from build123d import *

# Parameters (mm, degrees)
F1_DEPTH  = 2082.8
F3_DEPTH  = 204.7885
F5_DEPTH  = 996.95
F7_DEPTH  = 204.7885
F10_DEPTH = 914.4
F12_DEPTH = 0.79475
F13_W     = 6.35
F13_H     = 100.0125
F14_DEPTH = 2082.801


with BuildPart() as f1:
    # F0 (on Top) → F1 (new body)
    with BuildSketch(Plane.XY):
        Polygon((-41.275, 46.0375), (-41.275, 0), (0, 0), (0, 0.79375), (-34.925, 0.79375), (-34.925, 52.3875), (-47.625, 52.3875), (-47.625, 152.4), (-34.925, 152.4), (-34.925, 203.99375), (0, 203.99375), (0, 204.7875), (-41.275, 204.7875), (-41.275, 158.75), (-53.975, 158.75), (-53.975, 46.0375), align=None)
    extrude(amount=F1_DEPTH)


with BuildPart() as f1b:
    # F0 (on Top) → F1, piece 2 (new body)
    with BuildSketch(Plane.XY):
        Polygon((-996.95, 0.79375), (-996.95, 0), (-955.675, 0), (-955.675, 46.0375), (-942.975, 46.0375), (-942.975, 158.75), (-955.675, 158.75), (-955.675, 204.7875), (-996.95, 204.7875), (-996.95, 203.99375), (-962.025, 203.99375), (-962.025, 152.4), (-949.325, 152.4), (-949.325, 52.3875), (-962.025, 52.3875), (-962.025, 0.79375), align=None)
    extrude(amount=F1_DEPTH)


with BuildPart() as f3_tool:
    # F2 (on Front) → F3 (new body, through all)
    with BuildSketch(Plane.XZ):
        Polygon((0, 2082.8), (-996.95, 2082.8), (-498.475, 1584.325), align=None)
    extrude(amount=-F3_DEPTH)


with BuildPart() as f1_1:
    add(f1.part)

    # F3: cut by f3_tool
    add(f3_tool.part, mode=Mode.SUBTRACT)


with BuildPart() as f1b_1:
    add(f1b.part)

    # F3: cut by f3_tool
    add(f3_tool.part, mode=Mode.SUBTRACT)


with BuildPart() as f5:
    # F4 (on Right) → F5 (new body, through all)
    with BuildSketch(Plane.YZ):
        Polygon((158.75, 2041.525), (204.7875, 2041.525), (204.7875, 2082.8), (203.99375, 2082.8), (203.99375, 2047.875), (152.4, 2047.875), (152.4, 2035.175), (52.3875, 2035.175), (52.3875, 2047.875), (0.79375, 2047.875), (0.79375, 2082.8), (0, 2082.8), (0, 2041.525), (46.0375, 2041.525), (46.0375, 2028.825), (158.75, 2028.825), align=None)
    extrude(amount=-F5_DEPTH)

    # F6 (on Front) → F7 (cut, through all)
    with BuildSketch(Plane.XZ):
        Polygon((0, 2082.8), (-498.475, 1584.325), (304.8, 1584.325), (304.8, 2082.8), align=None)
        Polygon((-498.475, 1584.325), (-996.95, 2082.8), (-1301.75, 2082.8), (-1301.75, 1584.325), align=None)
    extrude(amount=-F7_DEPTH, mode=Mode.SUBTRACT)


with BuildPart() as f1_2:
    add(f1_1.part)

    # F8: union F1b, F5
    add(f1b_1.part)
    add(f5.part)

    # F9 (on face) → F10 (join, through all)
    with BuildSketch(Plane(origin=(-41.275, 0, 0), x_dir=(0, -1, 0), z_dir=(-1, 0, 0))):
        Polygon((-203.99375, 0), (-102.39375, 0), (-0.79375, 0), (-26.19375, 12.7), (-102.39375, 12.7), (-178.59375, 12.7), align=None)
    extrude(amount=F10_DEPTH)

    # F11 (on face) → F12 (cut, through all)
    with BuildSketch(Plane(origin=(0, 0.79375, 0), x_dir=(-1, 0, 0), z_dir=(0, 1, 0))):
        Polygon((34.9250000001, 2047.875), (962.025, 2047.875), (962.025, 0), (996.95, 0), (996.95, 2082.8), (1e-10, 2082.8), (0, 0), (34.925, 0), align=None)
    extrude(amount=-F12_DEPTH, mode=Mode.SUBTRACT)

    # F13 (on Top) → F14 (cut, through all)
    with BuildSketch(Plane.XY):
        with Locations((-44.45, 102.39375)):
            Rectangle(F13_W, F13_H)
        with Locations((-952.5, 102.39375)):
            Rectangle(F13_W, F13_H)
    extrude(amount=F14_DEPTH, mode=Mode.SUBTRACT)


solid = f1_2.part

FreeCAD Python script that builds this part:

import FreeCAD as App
import Part
import Sketcher
from FreeCAD import Vector
Q = App.Units.Quantity


def add_polygon(sketch, points):
    """Adds a closed chain of lines whose ends are joined by coincident constraints."""
    first, n = sketch.GeometryCount, len(points)
    for a, b in zip(points, points[1:] + points[:1]):
        sketch.addGeometry(Part.LineSegment(App.Vector(*a, 0), App.Vector(*b, 0)), False)
    for i in range(n):
        sketch.addConstraint(Sketcher.Constraint("Coincident", first + i, 2, first + (i + 1) % n, 1))

doc = App.newDocument("Part")
body = doc.addObject("PartDesign::Body", "Body")

# Sketch on XY plane
sketch1 = body.newObject("Sketcher::SketchObject", "Sketch")
sketch1.AttachmentSupport = (doc.getObject("XY_Plane"), [""])
sketch1.MapMode = "FlatFace"
add_polygon(sketch1, [(-41.3, 46), (-41.3, 0), (0, 0), (0, 0.8), (-34.9, 0.8), (-34.9, 52.4), (-47.6, 52.4), (-47.6, 152.4), (-34.9, 152.4), (-34.9, 204), (0, 204), (0, 204.8), (-41.3, 204.8), (-41.3, 158.8), (-54, 158.8), (-54, 46)])  # lines 0-15
sketch1.addConstraint(Sketcher.Constraint("Vertical", 0))
sketch1.addConstraint(Sketcher.Constraint("Horizontal", 1))
sketch1.addConstraint(Sketcher.Constraint("Vertical", 2))
sketch1.addConstraint(Sketcher.Constraint("Horizontal", 3))
sketch1.addConstraint(Sketcher.Constraint("Vertical", 4))
sketch1.addConstraint(Sketcher.Constraint("Horizontal", 5))
sketch1.addConstraint(Sketcher.Constraint("Vertical", 6))
sketch1.addConstraint(Sketcher.Constraint("Horizontal", 7))
sketch1.addConstraint(Sketcher.Constraint("Vertical", 8))
sketch1.addConstraint(Sketcher.Constraint("Horizontal", 9))
sketch1.addConstraint(Sketcher.Constraint("Vertical", 10))
sketch1.addConstraint(Sketcher.Constraint("Horizontal", 11))
sketch1.addConstraint(Sketcher.Constraint("Vertical", 12))
sketch1.addConstraint(Sketcher.Constraint("Horizontal", 13))
sketch1.addConstraint(Sketcher.Constraint("Vertical", 14))
sketch1.addConstraint(Sketcher.Constraint("Horizontal", 15))
sketch1.addConstraint(Sketcher.Constraint("Coincident", 1, 2, -1, 1))
sketch1.addConstraint(Sketcher.Constraint("PointOnObject", 9, 2, -2))
sketch1.addConstraint(Sketcher.Constraint("Vertical", 4, 2, 7, 2))
sketch1.addConstraint(Sketcher.Constraint("Vertical", 0, 2, 11, 2))
sketch1.addConstraint(Sketcher.Constraint("Equal", 7, 13))
sketch1.addConstraint(Sketcher.Constraint("Equal", 4, 8))
sketch1.addConstraint(Sketcher.Constraint("Equal", 2, 10))
sketch1.addConstraint(Sketcher.Constraint("Equal", 0, 12))
sketch1.addConstraint(Sketcher.Constraint("DistanceX", 5, 2, 5, 1, Q("0.5 in")))
sketch1.addConstraint(Sketcher.Constraint("DistanceY", -1, 1, 6, 2, Q("6 in")))
sketch1.addConstraint(Sketcher.Constraint("DistanceY", 3, 2, 8, 2, Q("8 in")))
sketch1.addConstraint(Sketcher.Constraint("DistanceX", 1, 1, 1, 2, Q("1.625 in")))
sketch1.addConstraint(Sketcher.Constraint("DistanceX", 3, 2, 3, 1, Q("1.375 in")))
sketch1.addConstraint(Sketcher.Constraint("DistanceY", 0, 2, 0, 1, Q("1.8125 in")))
sketch1.addConstraint(Sketcher.Constraint("DistanceY", 2, 1, 2, 2, Q("0.03125 in")))
pad1 = body.newObject("PartDesign::Pad", "Pad")
pad1.Profile = sketch1
pad1.Length = Q("82 in")
body2 = doc.addObject("PartDesign::Body", "Body001")

# Sketch on XY plane
sketch2 = body2.newObject("Sketcher::SketchObject", "Sketch001")
sketch2.AttachmentSupport = (doc.getObject("XY_Plane001"), [""])
sketch2.MapMode = "FlatFace"
add_polygon(sketch2, [(-997, 0.8), (-997, 0), (-955.7, 0), (-955.7, 46), (-943, 46), (-943, 158.8), (-955.7, 158.8), (-955.7, 204.8), (-997, 204.8), (-997, 204), (-962, 204), (-962, 152.4), (-949.3, 152.4), (-949.3, 52.4), (-962, 52.4), (-962, 0.8)])  # lines 0-15
sketch2.addConstraint(Sketcher.Constraint("Vertical", 0))
sketch2.addConstraint(Sketcher.Constraint("Horizontal", 1))
sketch2.addConstraint(Sketcher.Constraint("Vertical", 2))
sketch2.addConstraint(Sketcher.Constraint("Horizontal", 3))
sketch2.addConstraint(Sketcher.Constraint("Vertical", 4))
sketch2.addConstraint(Sketcher.Constraint("Horizontal", 5))
sketch2.addConstraint(Sketcher.Constraint("Vertical", 6))
sketch2.addConstraint(Sketcher.Constraint("Horizontal", 7))
sketch2.addConstraint(Sketcher.Constraint("Vertical", 8))
sketch2.addConstraint(Sketcher.Constraint("Horizontal", 9))
sketch2.addConstraint(Sketcher.Constraint("Vertical", 10))
sketch2.addConstraint(Sketcher.Constraint("Horizontal", 11))
sketch2.addConstraint(Sketcher.Constraint("Vertical", 12))
sketch2.addConstraint(Sketcher.Constraint("Horizontal", 13))
sketch2.addConstraint(Sketcher.Constraint("Vertical", 14))
sketch2.addConstraint(Sketcher.Constraint("Horizontal", 15))
sketch2.addConstraint(Sketcher.Constraint("PointOnObject", 0, 2, -1))
sketch2.addConstraint(Sketcher.Constraint("Vertical", 2, 2, 5, 2))
sketch2.addConstraint(Sketcher.Constraint("Vertical", 0, 2, 7, 2))
sketch2.addConstraint(Sketcher.Constraint("Vertical", 10, 2, 13, 2))
sketch2.addConstraint(Sketcher.Constraint("Equal", 5, 11))
sketch2.addConstraint(Sketcher.Constraint("Equal", 2, 6))
sketch2.addConstraint(Sketcher.Constraint("Equal", 0, 8))
sketch2.addConstraint(Sketcher.Constraint("Equal", 10, 14))
sketch2.addConstraint(Sketcher.Constraint("DistanceX", 3, 1, 3, 2, Q("0.5 in")))
sketch2.addConstraint(Sketcher.Constraint("DistanceY", -1, 1, 10, 2, Q("6 in")))
sketch2.addConstraint(Sketcher.Constraint("DistanceX", 1, 1, 1, 2, Q("1.625 in")))
sketch2.addConstraint(Sketcher.Constraint("DistanceX", 9, 1, 9, 2, Q("1.375 in")))
sketch2.addConstraint(Sketcher.Constraint("DistanceY", 0, 2, 0, 1, Q("0.03125 in")))
sketch2.addConstraint(Sketcher.Constraint("DistanceY", 2, 1, 2, 2, Q("1.8125 in")))
sketch2.addConstraint(Sketcher.Constraint("DistanceY", 4, 1, 4, 2, Q("4.4375 in")))
sketch2.addConstraint(Sketcher.Constraint("DistanceX", 0, 2, -1, 1, Q("39.25 in")))
pad2 = body2.newObject("PartDesign::Pad", "Pad001")
pad2.Profile = sketch2
pad2.Length = Q("82 in")
body3 = doc.addObject("PartDesign::Body", "Body002")

# Sketch on XZ plane
sketch3 = body3.newObject("Sketcher::SketchObject", "Sketch002")
sketch3.AttachmentSupport = (doc.getObject("XZ_Plane002"), [""])
sketch3.MapMode = "FlatFace"
add_polygon(sketch3, [(0, 2083), (-997, 2083), (-498, 1584)])  # lines 0-2
sketch3.addConstraint(Sketcher.Constraint("Horizontal", 0))
sketch3.addConstraint(Sketcher.Constraint("PointOnObject", 2, 2, -2))
sketch3.addConstraint(Sketcher.Constraint("Perpendicular", 1, 2))
sketch3.addConstraint(Sketcher.Constraint("Equal", 1, 2))
sketch3.addConstraint(Sketcher.Constraint("DistanceY", -1, 1, 0, 2, Q("82 in")))
sketch3.addConstraint(Sketcher.Constraint("DistanceX", 0, 2, 0, 1, Q("39.25 in")))
pad3 = body3.newObject("PartDesign::Pad", "Pad002")
pad3.Profile = sketch3
pad3.Length = 204.7885
pad3.Reversed = True
doc.recompute()

body4 = doc.addObject("PartDesign::Body", "Body003")
body4.BaseFeature = body3
boolean = body.newObject("PartDesign::Boolean", "Boolean")
boolean.Type = "Cut"
boolean.addObjects([body4])
doc.recompute()

boolean2 = body2.newObject("PartDesign::Boolean", "Boolean001")
boolean2.Type = "Cut"
boolean2.addObjects([body3])
body5 = doc.addObject("PartDesign::Body", "Body004")

# Sketch on YZ plane
sketch4 = body5.newObject("Sketcher::SketchObject", "Sketch003")
sketch4.AttachmentSupport = (doc.getObject("YZ_Plane004"), [""])
sketch4.MapMode = "FlatFace"
add_polygon(sketch4, [(158.8, 2041.5), (204.8, 2041.5), (204.8, 2082.8), (204, 2082.8), (204, 2047.9), (152.4, 2047.9), (152.4, 2035.2), (52.4, 2035.2), (52.4, 2047.9), (0.8, 2047.9), (0.8, 2082.8), (0, 2082.8), (0, 2041.5), (46, 2041.5), (46, 2028.8), (158.8, 2028.8)])  # lines 0-15
sketch4.addConstraint(Sketcher.Constraint("Horizontal", 0))
sketch4.addConstraint(Sketcher.Constraint("Vertical", 1))
sketch4.addConstraint(Sketcher.Constraint("Horizontal", 2))
sketch4.addConstraint(Sketcher.Constraint("Vertical", 3))
sketch4.addConstraint(Sketcher.Constraint("Horizontal", 4))
sketch4.addConstraint(Sketcher.Constraint("Vertical", 5))
sketch4.addConstraint(Sketcher.Constraint("Horizontal", 6))
sketch4.addConstraint(Sketcher.Constraint("Vertical", 7))
sketch4.addConstraint(Sketcher.Constraint("Horizontal", 8))
sketch4.addConstraint(Sketcher.Constraint("Vertical", 9))
sketch4.addConstraint(Sketcher.Constraint("Horizontal", 10))
sketch4.addConstraint(Sketcher.Constraint("Vertical", 11))
sketch4.addConstraint(Sketcher.Constraint("Horizontal", 12))
sketch4.addConstraint(Sketcher.Constraint("Vertical", 13))
sketch4.addConstraint(Sketcher.Constraint("Horizontal", 14))
sketch4.addConstraint(Sketcher.Constraint("Vertical", 15))
sketch4.addConstraint(Sketcher.Constraint("PointOnObject", 10, 2, -2))
sketch4.addConstraint(Sketcher.Constraint("Horizontal", 4, 2, 7, 2))
sketch4.addConstraint(Sketcher.Constraint("Horizontal", 2, 2, 9, 2))
sketch4.addConstraint(Sketcher.Constraint("Horizontal", 0, 2, 11, 2))
sketch4.addConstraint(Sketcher.Constraint("Equal", 4, 8))
sketch4.addConstraint(Sketcher.Constraint("Equal", 2, 10))
sketch4.addConstraint(Sketcher.Constraint("Equal", 0, 12))
sketch4.addConstraint(Sketcher.Constraint("Equal", 7, 13))
sketch4.addConstraint(Sketcher.Constraint("DistanceY", 5, 2, 5, 1, Q("0.5 in")))
sketch4.addConstraint(Sketcher.Constraint("DistanceY", -1, 1, 1, 2, Q("82 in")))
sketch4.addConstraint(Sketcher.Constraint("DistanceX", -1, 1, 4, 2, Q("6 in")))
sketch4.addConstraint(Sketcher.Constraint("DistanceX", 8, 2, 3, 2, Q("8 in")))
sketch4.addConstraint(Sketcher.Constraint("DistanceX", 0, 1, 0, 2, Q("1.8125 in")))
sketch4.addConstraint(Sketcher.Constraint("DistanceX", 2, 2, 2, 1, Q("0.03125 in")))
sketch4.addConstraint(Sketcher.Constraint("DistanceY", 1, 1, 1, 2, Q("1.625 in")))
sketch4.addConstraint(Sketcher.Constraint("DistanceY", 3, 2, 3, 1, Q("1.375 in")))
pad4 = body5.newObject("PartDesign::Pad", "Pad003")
pad4.Profile = sketch4
pad4.Length = Q("39.25 in")
pad4.Reversed = True

# Sketch on XZ plane
sketch5 = body5.newObject("Sketcher::SketchObject", "Sketch004")
sketch5.AttachmentSupport = (doc.getObject("XZ_Plane004"), [""])
sketch5.MapMode = "FlatFace"
add_polygon(sketch5, [(0, 2083), (-498, 1584), (305, 1584), (305, 2083)])  # lines 0-3
add_polygon(sketch5, [(-498, 1584), (-997, 2083), (-1302, 2083), (-1302, 1584)])  # lines 4-7
sketch5.addConstraint(Sketcher.Constraint("Horizontal", 1))
sketch5.addConstraint(Sketcher.Constraint("Vertical", 2))
sketch5.addConstraint(Sketcher.Constraint("Horizontal", 3))
sketch5.addConstraint(Sketcher.Constraint("Horizontal", 5))
sketch5.addConstraint(Sketcher.Constraint("Vertical", 6))
sketch5.addConstraint(Sketcher.Constraint("Horizontal", 7))
sketch5.addConstraint(Sketcher.Constraint("Coincident", 7, 2, 0, 2))
sketch5.addConstraint(Sketcher.Constraint("PointOnObject", 3, 2, -2))
sketch5.addConstraint(Sketcher.Constraint("Perpendicular", 0, 4))
sketch5.addConstraint(Sketcher.Constraint("Horizontal", 3, 2, 4, 2))
sketch5.addConstraint(Sketcher.Constraint("Equal", 3, 5))
sketch5.addConstraint(Sketcher.Constraint("Equal", 1, 7))
sketch5.addConstraint(Sketcher.Constraint("DistanceX", 3, 2, 3, 1, Q("12 in")))
sketch5.addConstraint(Sketcher.Constraint("DistanceY", -1, 1, 2, 2, Q("82 in")))
sketch5.addConstraint(Sketcher.Constraint("DistanceX", 1, 1, 1, 2, Q("31.625 in")))
pocket1 = body5.newObject("PartDesign::Pocket", "Pocket")
pocket1.Profile = sketch5
pocket1.Type = "ThroughAll"
body.AllowCompound = True
doc.recompute()

boolean3 = body.newObject("PartDesign::Boolean", "Boolean002")
boolean3.Type = "Fuse"
boolean3.addObjects([body2])
doc.recompute()

boolean4 = body.newObject("PartDesign::Boolean", "Boolean003")
boolean4.Type = "Fuse"
boolean4.addObjects([body5])

# Sketch on YZ plane
sketch6 = body.newObject("Sketcher::SketchObject", "Sketch005")
sketch6.AttachmentSupport = (doc.getObject("YZ_Plane"), [""])
sketch6.MapMode = "FlatFace"
sketch6.AttachmentOffset = App.Placement(Vector(0, 0, -1.625 * 25.4), App.Rotation())
add_polygon(sketch6, [(204, 0), (1, 0), (26, 13), (179, 13)])  # lines 0-3
sketch6.addConstraint(Sketcher.Constraint("Horizontal", 0))
sketch6.addConstraint(Sketcher.Constraint("Horizontal", 2))
sketch6.addConstraint(Sketcher.Constraint("PointOnObject", 0, 2, -1))
sketch6.addConstraint(Sketcher.Constraint("Equal", 1, 3))
sketch6.addConstraint(Sketcher.Constraint("DistanceX", 0, 2, 0, 1, Q("8 in")))
sketch6.addConstraint(Sketcher.Constraint("DistanceX", 2, 1, 2, 2, Q("6 in")))
sketch6.addConstraint(Sketcher.Constraint("DistanceY", -1, 1, 1, 2, Q("0.5 in")))
sketch6.addConstraint(Sketcher.Constraint("DistanceX", -1, 1, 0, 2, Q("0.03125 in")))
pad5 = body.newObject("PartDesign::Pad", "Pad004")
pad5.Profile = sketch6
pad5.Length = Q("36 in")
pad5.Reversed = True

# Sketch on XZ plane
sketch7 = body.newObject("Sketcher::SketchObject", "Sketch006")
sketch7.AttachmentSupport = (doc.getObject("XZ_Plane"), [""])
sketch7.MapMode = "FlatFace"
sketch7.AttachmentOffset = App.Placement(Vector(0, 0, -0.03125 * 25.4), App.Rotation())
add_polygon(sketch7, [(-35, 2048), (-962, 2048), (-962, 0), (-997, 0), (-997, 2083), (0, 2083), (0, 0), (-35, 0)])  # lines 0-7
sketch7.addConstraint(Sketcher.Constraint("Horizontal", 0))
sketch7.addConstraint(Sketcher.Constraint("Vertical", 1))
sketch7.addConstraint(Sketcher.Constraint("Horizontal", 2))
sketch7.addConstraint(Sketcher.Constraint("Vertical", 3))
sketch7.addConstraint(Sketcher.Constraint("Horizontal", 4))
sketch7.addConstraint(Sketcher.Constraint("Vertical", 5))
sketch7.addConstraint(Sketcher.Constraint("Horizontal", 6))
sketch7.addConstraint(Sketcher.Constraint("Vertical", 7))
sketch7.addConstraint(Sketcher.Constraint("Coincident", 5, 2, -1, 1))
sketch7.addConstraint(Sketcher.Constraint("PointOnObject", 1, 2, -1))
sketch7.addConstraint(Sketcher.Constraint("Equal", 2, 6))
sketch7.addConstraint(Sketcher.Constraint("DistanceY", 3, 1, 3, 2, Q("82 in")))
sketch7.addConstraint(Sketcher.Constraint("DistanceX", 0, 2, 0, 1, Q("36.5 in")))
sketch7.addConstraint(Sketcher.Constraint("DistanceX", 4, 1, 4, 2, Q("39.25 in")))
sketch7.addConstraint(Sketcher.Constraint("DistanceY", 1, 2, 1, 1, Q("80.625 in")))
pocket2 = body.newObject("PartDesign::Pocket", "Pocket001")
pocket2.Profile = sketch7
pocket2.Type = "ThroughAll"
pocket2.Reversed = True

# Sketch on XY plane
sketch8 = body.newObject("Sketcher::SketchObject", "Sketch007")
sketch8.AttachmentSupport = (doc.getObject("XY_Plane"), [""])
sketch8.MapMode = "FlatFace"
add_polygon(sketch8, [(-48, 152), (-48, 52), (-41, 52), (-41, 152)])  # lines 0-3
add_polygon(sketch8, [(-956, 152), (-956, 52), (-949, 52), (-949, 152)])  # lines 4-7
sketch8.addConstraint(Sketcher.Constraint("Vertical", 0))
sketch8.addConstraint(Sketcher.Constraint("Horizontal", 1))
sketch8.addConstraint(Sketcher.Constraint("Vertical", 2))
sketch8.addConstraint(Sketcher.Constraint("Horizontal", 3))
sketch8.addConstraint(Sketcher.Constraint("Vertical", 4))
sketch8.addConstraint(Sketcher.Constraint("Horizontal", 5))
sketch8.addConstraint(Sketcher.Constraint("Vertical", 6))
sketch8.addConstraint(Sketcher.Constraint("Horizontal", 7))
sketch8.addConstraint(Sketcher.Constraint("Horizontal", 1, 2, 4, 2))
sketch8.addConstraint(Sketcher.Constraint("Horizontal", 3, 2, 6, 2))
sketch8.addConstraint(Sketcher.Constraint("Equal", 3, 5))
sketch8.addConstraint(Sketcher.Constraint("DistanceY", -1, 1, 2, 2, Q("6 in")))
sketch8.addConstraint(Sketcher.Constraint("DistanceX", 4, 2, 1, 2, Q("36 in")))
sketch8.addConstraint(Sketcher.Constraint("DistanceX", 1, 1, 1, 2, Q("0.25 in")))
sketch8.addConstraint(Sketcher.Constraint("DistanceY", 0, 2, 0, 1, Q("3.9375 in")))
sketch8.addConstraint(Sketcher.Constraint("DistanceX", 0, 2, -1, 1, Q("1.875 in")))
pocket3 = body.newObject("PartDesign::Pocket", "Pocket002")
pocket3.Profile = sketch8
pocket3.Type = "ThroughAll"
pocket3.Reversed = True

doc.recompute()
